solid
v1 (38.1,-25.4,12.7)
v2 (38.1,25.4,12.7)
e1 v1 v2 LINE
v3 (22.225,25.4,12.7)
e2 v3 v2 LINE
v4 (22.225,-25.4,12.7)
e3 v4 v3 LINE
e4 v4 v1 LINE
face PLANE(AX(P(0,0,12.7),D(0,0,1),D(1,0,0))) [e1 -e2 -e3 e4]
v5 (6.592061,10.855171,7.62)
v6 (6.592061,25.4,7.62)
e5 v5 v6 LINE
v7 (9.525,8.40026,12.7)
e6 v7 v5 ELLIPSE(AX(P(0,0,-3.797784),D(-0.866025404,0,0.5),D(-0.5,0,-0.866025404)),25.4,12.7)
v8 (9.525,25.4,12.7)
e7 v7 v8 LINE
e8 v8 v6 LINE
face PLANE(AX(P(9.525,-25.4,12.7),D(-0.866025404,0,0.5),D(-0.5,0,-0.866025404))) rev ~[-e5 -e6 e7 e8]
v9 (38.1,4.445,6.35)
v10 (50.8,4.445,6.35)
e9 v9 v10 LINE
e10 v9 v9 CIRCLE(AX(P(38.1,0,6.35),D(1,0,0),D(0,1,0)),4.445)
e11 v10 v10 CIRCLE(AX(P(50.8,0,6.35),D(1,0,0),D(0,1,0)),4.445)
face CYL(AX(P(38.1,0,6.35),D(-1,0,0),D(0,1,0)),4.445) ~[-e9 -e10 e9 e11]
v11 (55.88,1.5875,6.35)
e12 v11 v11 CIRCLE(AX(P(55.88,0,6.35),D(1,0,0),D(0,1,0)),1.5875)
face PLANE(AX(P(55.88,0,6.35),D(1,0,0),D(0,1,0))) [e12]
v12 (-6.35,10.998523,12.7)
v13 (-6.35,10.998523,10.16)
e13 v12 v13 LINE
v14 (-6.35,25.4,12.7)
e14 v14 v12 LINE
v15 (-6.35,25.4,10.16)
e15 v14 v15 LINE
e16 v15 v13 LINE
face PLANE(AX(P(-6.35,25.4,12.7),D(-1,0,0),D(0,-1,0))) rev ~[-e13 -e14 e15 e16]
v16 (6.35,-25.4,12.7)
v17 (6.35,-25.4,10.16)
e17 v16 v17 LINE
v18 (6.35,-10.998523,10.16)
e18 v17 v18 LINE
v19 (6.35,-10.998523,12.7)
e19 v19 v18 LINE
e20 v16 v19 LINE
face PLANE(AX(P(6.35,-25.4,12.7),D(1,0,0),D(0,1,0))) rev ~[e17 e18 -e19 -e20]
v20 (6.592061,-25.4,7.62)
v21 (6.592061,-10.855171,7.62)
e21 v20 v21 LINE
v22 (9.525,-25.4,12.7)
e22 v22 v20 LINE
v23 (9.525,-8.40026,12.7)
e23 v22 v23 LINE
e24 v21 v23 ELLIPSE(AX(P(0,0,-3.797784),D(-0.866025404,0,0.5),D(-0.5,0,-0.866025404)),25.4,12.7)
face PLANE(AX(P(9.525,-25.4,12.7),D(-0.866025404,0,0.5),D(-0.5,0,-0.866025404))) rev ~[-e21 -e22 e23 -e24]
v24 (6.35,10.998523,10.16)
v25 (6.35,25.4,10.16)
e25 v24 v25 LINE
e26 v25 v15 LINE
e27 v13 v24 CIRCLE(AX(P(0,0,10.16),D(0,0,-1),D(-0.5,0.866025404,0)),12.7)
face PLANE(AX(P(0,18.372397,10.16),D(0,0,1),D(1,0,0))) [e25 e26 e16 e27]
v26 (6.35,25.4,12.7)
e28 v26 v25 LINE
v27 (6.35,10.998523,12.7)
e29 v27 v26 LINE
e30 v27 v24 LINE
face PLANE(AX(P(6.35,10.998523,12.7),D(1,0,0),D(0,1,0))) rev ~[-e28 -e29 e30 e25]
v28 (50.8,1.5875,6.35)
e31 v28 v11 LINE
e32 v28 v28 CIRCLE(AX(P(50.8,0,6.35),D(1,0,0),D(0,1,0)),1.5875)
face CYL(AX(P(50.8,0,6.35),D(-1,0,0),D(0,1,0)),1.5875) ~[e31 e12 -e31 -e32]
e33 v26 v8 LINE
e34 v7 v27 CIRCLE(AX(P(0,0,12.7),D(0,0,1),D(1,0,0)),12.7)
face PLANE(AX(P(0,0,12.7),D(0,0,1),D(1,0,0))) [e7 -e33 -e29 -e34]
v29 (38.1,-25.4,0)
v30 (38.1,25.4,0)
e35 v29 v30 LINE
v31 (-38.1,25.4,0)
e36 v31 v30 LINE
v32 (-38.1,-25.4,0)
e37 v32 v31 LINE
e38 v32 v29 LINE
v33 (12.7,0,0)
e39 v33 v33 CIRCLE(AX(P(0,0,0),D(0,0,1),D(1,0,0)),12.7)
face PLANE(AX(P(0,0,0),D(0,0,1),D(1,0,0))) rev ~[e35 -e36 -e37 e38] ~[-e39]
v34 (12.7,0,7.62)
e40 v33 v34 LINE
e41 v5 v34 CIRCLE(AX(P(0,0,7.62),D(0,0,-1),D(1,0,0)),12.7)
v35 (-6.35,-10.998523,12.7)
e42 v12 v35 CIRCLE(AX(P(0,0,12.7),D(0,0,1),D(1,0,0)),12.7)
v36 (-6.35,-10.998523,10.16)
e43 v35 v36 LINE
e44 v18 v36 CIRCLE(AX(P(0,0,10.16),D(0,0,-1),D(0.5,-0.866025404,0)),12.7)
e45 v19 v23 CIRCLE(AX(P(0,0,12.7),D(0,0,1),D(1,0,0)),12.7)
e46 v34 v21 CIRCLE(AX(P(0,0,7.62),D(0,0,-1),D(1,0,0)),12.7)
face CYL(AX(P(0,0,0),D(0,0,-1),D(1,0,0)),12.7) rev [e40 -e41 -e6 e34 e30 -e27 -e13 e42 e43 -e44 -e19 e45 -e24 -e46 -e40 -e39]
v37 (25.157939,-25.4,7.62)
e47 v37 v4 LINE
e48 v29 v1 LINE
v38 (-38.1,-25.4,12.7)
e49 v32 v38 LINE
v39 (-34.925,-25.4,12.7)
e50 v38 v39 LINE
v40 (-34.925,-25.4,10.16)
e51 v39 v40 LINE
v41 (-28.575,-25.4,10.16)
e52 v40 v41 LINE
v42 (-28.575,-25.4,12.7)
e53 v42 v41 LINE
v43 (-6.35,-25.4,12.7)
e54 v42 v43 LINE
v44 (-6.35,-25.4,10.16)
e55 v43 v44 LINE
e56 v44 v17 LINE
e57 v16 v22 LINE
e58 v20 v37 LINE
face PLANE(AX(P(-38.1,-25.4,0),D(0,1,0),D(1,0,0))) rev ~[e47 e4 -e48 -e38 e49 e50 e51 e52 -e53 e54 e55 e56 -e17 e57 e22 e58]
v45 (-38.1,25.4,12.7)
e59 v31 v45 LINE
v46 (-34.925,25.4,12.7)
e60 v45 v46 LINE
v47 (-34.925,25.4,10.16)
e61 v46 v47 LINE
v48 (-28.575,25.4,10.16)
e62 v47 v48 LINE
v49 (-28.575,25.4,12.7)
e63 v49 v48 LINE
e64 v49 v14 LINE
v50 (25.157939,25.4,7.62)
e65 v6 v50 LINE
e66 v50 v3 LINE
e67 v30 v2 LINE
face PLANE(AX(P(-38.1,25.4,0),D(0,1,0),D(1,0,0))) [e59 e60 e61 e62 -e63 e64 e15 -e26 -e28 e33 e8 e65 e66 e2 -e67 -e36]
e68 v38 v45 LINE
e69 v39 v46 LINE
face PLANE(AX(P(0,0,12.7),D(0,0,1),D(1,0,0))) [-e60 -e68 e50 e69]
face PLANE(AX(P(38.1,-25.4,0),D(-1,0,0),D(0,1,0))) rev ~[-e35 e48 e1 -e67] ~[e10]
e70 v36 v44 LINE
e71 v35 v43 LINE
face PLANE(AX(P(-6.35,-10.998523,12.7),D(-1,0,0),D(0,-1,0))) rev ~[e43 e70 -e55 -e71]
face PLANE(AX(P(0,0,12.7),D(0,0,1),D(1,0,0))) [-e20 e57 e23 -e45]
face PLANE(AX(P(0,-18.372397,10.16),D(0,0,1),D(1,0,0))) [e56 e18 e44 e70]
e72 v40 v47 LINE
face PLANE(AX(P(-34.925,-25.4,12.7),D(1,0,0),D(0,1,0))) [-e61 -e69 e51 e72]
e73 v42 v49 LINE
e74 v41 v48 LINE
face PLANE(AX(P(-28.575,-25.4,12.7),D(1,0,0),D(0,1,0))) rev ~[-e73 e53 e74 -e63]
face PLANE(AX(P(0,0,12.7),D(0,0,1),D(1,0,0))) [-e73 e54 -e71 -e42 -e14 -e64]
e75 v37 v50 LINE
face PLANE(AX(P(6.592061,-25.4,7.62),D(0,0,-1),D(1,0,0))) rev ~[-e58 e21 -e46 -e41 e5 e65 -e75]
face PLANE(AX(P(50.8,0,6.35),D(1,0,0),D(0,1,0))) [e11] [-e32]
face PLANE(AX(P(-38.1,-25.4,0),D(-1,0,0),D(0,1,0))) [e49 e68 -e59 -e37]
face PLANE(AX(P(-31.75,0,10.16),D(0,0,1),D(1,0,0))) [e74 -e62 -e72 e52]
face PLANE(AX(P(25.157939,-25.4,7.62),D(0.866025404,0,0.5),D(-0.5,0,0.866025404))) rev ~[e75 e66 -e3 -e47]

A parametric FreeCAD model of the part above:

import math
import FreeCAD as App
import Part
import Sketcher
Q = App.Units.Quantity


def add_polygon(sketch, points):
    """Adds a closed chain of lines whose ends are joined by coincident constraints."""
    first, n = sketch.GeometryCount, len(points)
    for a, b in zip(points, points[1:] + points[:1]):
        sketch.addGeometry(Part.LineSegment(App.Vector(*a, 0), App.Vector(*b, 0)), False)
    for i in range(n):
        sketch.addConstraint(Sketcher.Constraint("Coincident", first + i, 2, first + (i + 1) % n, 1))

doc = App.newDocument("Part")
body = doc.addObject("PartDesign::Body", "Body")

# Sketch on XY plane
sketch1 = body.newObject("Sketcher::SketchObject", "Sketch")
sketch1.AttachmentSupport = (doc.getObject("XY_Plane"), [""])
sketch1.MapMode = "FlatFace"
add_polygon(sketch1, [(-38.1, 25.4), (-38.1, -25.4), (38.1, -25.4), (38.1, 25.4)])  # lines 0-3
sketch1.addGeometry(Part.Circle(App.Vector(0, 0, 0), App.Vector(0, 0, 1), 12.7), False)  # 4
sketch1.addConstraint(Sketcher.Constraint("Vertical", 0))
sketch1.addConstraint(Sketcher.Constraint("Horizontal", 1))
sketch1.addConstraint(Sketcher.Constraint("Vertical", 2))
sketch1.addConstraint(Sketcher.Constraint("Horizontal", 3))
sketch1.addConstraint(Sketcher.Constraint("Coincident", 4, 3, -1, 1))
sketch1.addConstraint(Sketcher.Constraint("Symmetric", 0, 2, 2, 2, -1, 1))
sketch1.addConstraint(Sketcher.Constraint("Diameter", 4, Q("1 in")))
sketch1.addConstraint(Sketcher.Constraint("DistanceX", 1, 1, 1, 2, Q("3 in")))
sketch1.addConstraint(Sketcher.Constraint("DistanceY", 0, 2, 0, 1, Q("2 in")))
pad1 = body.newObject("PartDesign::Pad", "Pad")
pad1.Profile = sketch1
pad1.Length = Q("0.5 in")

# Sketch on XY plane
sketch2 = body.newObject("Sketcher::SketchObject", "Sketch001")
sketch2.AttachmentSupport = (doc.getObject("XY_Plane"), [""])
sketch2.MapMode = "FlatFace"
sketch2.AttachmentOffset = App.Placement(App.Vector(0, 0, 0.5 * 25.4), App.Rotation())
add_polygon(sketch2, [(-34.925, 25.4), (-34.925, -25.4), (-28.575, -25.4), (-28.575, 25.4)])  # lines 0-3
sketch2.addGeometry(Part.LineSegment(App.Vector(-6.35, -10.998523, 0), App.Vector(-6.35, -25.4, 0)), False)  # 4
sketch2.addGeometry(Part.LineSegment(App.Vector(-6.35, -25.4, 0), App.Vector(6.35, -25.4, 0)), False)  # 5
sketch2.addGeometry(Part.LineSegment(App.Vector(6.35, -25.4, 0), App.Vector(6.35, -10.998523, 0)), False)  # 6
sketch2.addGeometry(Part.ArcOfCircle(Part.Circle(App.Vector(0, 0, 0), App.Vector(0, 0, 1), 12.7), math.radians(-120), math.radians(-60)), False)  # 7
sketch2.addGeometry(Part.LineSegment(App.Vector(6.35, 25.4, 0), App.Vector(-6.35, 25.4, 0)), False)  # 8
sketch2.addGeometry(Part.LineSegment(App.Vector(-6.35, 25.4, 0), App.Vector(-6.35, 10.998523, 0)), False)  # 9
sketch2.addGeometry(Part.ArcOfCircle(Part.Circle(App.Vector(0, 0, 0), App.Vector(0, 0, 1), 12.7), math.radians(60), math.radians(120)), False)  # 10
sketch2.addGeometry(Part.LineSegment(App.Vector(6.35, 10.998523, 0), App.Vector(6.35, 25.4, 0)), False)  # 11
sketch2.addConstraint(Sketcher.Constraint("Coincident", 4, 2, 5, 1))
sketch2.addConstraint(Sketcher.Constraint("Coincident", 5, 2, 6, 1))
sketch2.addConstraint(Sketcher.Constraint("Coincident", 6, 2, 7, 2))
sketch2.addConstraint(Sketcher.Constraint("Coincident", 7, 1, 4, 1))
sketch2.addConstraint(Sketcher.Constraint("Coincident", 8, 2, 9, 1))
sketch2.addConstraint(Sketcher.Constraint("Coincident", 9, 2, 10, 2))
sketch2.addConstraint(Sketcher.Constraint("Coincident", 10, 1, 11, 1))
sketch2.addConstraint(Sketcher.Constraint("Coincident", 11, 2, 8, 1))
sketch2.addConstraint(Sketcher.Constraint("Vertical", 0))
sketch2.addConstraint(Sketcher.Constraint("Horizontal", 1))
sketch2.addConstraint(Sketcher.Constraint("Vertical", 2))
sketch2.addConstraint(Sketcher.Constraint("Horizontal", 3))
sketch2.addConstraint(Sketcher.Constraint("Vertical", 4))
sketch2.addConstraint(Sketcher.Constraint("Horizontal", 5))
sketch2.addConstraint(Sketcher.Constraint("Vertical", 6))
sketch2.addConstraint(Sketcher.Constraint("Horizontal", 8))
sketch2.addConstraint(Sketcher.Constraint("Vertical", 9))
sketch2.addConstraint(Sketcher.Constraint("Vertical", 11))
sketch2.addConstraint(Sketcher.Constraint("Coincident", 7, 3, -1, 1))
sketch2.addConstraint(Sketcher.Constraint("Coincident", 10, 3, -1, 1))
sketch2.addConstraint(Sketcher.Constraint("Equal", 7, 10))
sketch2.addConstraint(Sketcher.Constraint("Symmetric", 5, 2, 8, 2, -1, 1))
sketch2.addConstraint(Sketcher.Constraint("Horizontal", 1, 2, 4, 2))
sketch2.addConstraint(Sketcher.Constraint("Horizontal", 6, 2, 7, 1))
sketch2.addConstraint(Sketcher.Constraint("Horizontal", 3, 2, 8, 2))
sketch2.addConstraint(Sketcher.Constraint("Horizontal", 9, 2, 10, 1))
sketch2.addConstraint(Sketcher.Constraint("Radius", 7, Q("0.5 in")))
sketch2.addConstraint(Sketcher.Constraint("DistanceY", 0, 2, 0, 1, Q("2 in")))
sketch2.addConstraint(Sketcher.Constraint("DistanceX", 5, 1, 5, 2, Q("0.5 in")))
sketch2.addConstraint(Sketcher.Constraint("DistanceX", 1, 1, 1, 2, Q("0.25 in")))
sketch2.addConstraint(Sketcher.Constraint("DistanceX", 0, 2, -1, 1, Q("1.375 in")))
pocket1 = body.newObject("PartDesign::Pocket", "Pocket")
pocket1.Profile = sketch2
pocket1.Length = Q("0.1 in")

# Sketch on XZ plane
sketch3 = body.newObject("Sketcher::SketchObject", "Sketch002")
sketch3.AttachmentSupport = (doc.getObject("XZ_Plane"), [""])
sketch3.MapMode = "FlatFace"
sketch3.AttachmentOffset = App.Placement(App.Vector(0, 0, 1 * 25.4), App.Rotation())
add_polygon(sketch3, [(22.225, 12.7), (9.525, 12.7), (6.592061, 7.62), (25.157939, 7.62)])  # lines 0-3
sketch3.addConstraint(Sketcher.Constraint("Horizontal", 0))
sketch3.addConstraint(Sketcher.Constraint("Horizontal", 2))
sketch3.addConstraint(Sketcher.Constraint("Equal", 1, 3))
sketch3.addConstraint(Sketcher.Constraint("DistanceX", 0, 2, 0, 1, Q("0.5 in")))
sketch3.addConstraint(Sketcher.Constraint("Angle", 1, Q("-120 deg")))
sketch3.addConstraint(Sketcher.Constraint("DistanceY", -1, 1, 0, 2, Q("0.5 in")))
sketch3.addConstraint(Sketcher.Constraint("DistanceY", -1, 1, 1, 2, Q("0.3 in")))
sketch3.addConstraint(Sketcher.Constraint("DistanceX", -1, 1, 0, 2, Q("0.375 in")))
pocket2 = body.newObject("PartDesign::Pocket", "Pocket001")
pocket2.Profile = sketch3
pocket2.Type = "ThroughAll"

# Sketch on YZ plane
sketch4 = body.newObject("Sketcher::SketchObject", "Sketch003")
sketch4.AttachmentSupport = (doc.getObject("YZ_Plane"), [""])
sketch4.MapMode = "FlatFace"
sketch4.AttachmentOffset = App.Placement(App.Vector(0, 0, 1.5 * 25.4), App.Rotation())
sketch4.addGeometry(Part.Circle(App.Vector(0, 6.35, 0), App.Vector(0, 0, 1), 4.445), False)
sketch4.addConstraint(Sketcher.Constraint("PointOnObject", 0, 3, -2))
sketch4.addConstraint(Sketcher.Constraint("Diameter", 0, Q("0.35 in")))
sketch4.addConstraint(Sketcher.Constraint("DistanceY", -1, 1, 0, 3, Q("0.25 in")))
pad2 = body.newObject("PartDesign::Pad", "Pad001")
pad2.Profile = sketch4
pad2.Length = Q("0.5 in")

# Sketch on YZ plane
sketch5 = body.newObject("Sketcher::SketchObject", "Sketch004")
sketch5.AttachmentSupport = (doc.getObject("YZ_Plane"), [""])
sketch5.MapMode = "FlatFace"
sketch5.AttachmentOffset = App.Placement(App.Vector(0, 0, 2 * 25.4), App.Rotation())
sketch5.addGeometry(Part.Circle(App.Vector(0, 6.35, 0), App.Vector(0, 0, 1), 1.5875), False)
sketch5.addConstraint(Sketcher.Constraint("PointOnObject", 0, 3, -2))
sketch5.addConstraint(Sketcher.Constraint("Diameter", 0, Q("0.125 in")))
sketch5.addConstraint(Sketcher.Constraint("DistanceY", -1, 1, 0, 3, Q("0.25 in")))
pad3 = body.newObject("PartDesign::Pad", "Pad002")
pad3.Profile = sketch5
pad3.Length = Q("0.2 in")

doc.recompute()
